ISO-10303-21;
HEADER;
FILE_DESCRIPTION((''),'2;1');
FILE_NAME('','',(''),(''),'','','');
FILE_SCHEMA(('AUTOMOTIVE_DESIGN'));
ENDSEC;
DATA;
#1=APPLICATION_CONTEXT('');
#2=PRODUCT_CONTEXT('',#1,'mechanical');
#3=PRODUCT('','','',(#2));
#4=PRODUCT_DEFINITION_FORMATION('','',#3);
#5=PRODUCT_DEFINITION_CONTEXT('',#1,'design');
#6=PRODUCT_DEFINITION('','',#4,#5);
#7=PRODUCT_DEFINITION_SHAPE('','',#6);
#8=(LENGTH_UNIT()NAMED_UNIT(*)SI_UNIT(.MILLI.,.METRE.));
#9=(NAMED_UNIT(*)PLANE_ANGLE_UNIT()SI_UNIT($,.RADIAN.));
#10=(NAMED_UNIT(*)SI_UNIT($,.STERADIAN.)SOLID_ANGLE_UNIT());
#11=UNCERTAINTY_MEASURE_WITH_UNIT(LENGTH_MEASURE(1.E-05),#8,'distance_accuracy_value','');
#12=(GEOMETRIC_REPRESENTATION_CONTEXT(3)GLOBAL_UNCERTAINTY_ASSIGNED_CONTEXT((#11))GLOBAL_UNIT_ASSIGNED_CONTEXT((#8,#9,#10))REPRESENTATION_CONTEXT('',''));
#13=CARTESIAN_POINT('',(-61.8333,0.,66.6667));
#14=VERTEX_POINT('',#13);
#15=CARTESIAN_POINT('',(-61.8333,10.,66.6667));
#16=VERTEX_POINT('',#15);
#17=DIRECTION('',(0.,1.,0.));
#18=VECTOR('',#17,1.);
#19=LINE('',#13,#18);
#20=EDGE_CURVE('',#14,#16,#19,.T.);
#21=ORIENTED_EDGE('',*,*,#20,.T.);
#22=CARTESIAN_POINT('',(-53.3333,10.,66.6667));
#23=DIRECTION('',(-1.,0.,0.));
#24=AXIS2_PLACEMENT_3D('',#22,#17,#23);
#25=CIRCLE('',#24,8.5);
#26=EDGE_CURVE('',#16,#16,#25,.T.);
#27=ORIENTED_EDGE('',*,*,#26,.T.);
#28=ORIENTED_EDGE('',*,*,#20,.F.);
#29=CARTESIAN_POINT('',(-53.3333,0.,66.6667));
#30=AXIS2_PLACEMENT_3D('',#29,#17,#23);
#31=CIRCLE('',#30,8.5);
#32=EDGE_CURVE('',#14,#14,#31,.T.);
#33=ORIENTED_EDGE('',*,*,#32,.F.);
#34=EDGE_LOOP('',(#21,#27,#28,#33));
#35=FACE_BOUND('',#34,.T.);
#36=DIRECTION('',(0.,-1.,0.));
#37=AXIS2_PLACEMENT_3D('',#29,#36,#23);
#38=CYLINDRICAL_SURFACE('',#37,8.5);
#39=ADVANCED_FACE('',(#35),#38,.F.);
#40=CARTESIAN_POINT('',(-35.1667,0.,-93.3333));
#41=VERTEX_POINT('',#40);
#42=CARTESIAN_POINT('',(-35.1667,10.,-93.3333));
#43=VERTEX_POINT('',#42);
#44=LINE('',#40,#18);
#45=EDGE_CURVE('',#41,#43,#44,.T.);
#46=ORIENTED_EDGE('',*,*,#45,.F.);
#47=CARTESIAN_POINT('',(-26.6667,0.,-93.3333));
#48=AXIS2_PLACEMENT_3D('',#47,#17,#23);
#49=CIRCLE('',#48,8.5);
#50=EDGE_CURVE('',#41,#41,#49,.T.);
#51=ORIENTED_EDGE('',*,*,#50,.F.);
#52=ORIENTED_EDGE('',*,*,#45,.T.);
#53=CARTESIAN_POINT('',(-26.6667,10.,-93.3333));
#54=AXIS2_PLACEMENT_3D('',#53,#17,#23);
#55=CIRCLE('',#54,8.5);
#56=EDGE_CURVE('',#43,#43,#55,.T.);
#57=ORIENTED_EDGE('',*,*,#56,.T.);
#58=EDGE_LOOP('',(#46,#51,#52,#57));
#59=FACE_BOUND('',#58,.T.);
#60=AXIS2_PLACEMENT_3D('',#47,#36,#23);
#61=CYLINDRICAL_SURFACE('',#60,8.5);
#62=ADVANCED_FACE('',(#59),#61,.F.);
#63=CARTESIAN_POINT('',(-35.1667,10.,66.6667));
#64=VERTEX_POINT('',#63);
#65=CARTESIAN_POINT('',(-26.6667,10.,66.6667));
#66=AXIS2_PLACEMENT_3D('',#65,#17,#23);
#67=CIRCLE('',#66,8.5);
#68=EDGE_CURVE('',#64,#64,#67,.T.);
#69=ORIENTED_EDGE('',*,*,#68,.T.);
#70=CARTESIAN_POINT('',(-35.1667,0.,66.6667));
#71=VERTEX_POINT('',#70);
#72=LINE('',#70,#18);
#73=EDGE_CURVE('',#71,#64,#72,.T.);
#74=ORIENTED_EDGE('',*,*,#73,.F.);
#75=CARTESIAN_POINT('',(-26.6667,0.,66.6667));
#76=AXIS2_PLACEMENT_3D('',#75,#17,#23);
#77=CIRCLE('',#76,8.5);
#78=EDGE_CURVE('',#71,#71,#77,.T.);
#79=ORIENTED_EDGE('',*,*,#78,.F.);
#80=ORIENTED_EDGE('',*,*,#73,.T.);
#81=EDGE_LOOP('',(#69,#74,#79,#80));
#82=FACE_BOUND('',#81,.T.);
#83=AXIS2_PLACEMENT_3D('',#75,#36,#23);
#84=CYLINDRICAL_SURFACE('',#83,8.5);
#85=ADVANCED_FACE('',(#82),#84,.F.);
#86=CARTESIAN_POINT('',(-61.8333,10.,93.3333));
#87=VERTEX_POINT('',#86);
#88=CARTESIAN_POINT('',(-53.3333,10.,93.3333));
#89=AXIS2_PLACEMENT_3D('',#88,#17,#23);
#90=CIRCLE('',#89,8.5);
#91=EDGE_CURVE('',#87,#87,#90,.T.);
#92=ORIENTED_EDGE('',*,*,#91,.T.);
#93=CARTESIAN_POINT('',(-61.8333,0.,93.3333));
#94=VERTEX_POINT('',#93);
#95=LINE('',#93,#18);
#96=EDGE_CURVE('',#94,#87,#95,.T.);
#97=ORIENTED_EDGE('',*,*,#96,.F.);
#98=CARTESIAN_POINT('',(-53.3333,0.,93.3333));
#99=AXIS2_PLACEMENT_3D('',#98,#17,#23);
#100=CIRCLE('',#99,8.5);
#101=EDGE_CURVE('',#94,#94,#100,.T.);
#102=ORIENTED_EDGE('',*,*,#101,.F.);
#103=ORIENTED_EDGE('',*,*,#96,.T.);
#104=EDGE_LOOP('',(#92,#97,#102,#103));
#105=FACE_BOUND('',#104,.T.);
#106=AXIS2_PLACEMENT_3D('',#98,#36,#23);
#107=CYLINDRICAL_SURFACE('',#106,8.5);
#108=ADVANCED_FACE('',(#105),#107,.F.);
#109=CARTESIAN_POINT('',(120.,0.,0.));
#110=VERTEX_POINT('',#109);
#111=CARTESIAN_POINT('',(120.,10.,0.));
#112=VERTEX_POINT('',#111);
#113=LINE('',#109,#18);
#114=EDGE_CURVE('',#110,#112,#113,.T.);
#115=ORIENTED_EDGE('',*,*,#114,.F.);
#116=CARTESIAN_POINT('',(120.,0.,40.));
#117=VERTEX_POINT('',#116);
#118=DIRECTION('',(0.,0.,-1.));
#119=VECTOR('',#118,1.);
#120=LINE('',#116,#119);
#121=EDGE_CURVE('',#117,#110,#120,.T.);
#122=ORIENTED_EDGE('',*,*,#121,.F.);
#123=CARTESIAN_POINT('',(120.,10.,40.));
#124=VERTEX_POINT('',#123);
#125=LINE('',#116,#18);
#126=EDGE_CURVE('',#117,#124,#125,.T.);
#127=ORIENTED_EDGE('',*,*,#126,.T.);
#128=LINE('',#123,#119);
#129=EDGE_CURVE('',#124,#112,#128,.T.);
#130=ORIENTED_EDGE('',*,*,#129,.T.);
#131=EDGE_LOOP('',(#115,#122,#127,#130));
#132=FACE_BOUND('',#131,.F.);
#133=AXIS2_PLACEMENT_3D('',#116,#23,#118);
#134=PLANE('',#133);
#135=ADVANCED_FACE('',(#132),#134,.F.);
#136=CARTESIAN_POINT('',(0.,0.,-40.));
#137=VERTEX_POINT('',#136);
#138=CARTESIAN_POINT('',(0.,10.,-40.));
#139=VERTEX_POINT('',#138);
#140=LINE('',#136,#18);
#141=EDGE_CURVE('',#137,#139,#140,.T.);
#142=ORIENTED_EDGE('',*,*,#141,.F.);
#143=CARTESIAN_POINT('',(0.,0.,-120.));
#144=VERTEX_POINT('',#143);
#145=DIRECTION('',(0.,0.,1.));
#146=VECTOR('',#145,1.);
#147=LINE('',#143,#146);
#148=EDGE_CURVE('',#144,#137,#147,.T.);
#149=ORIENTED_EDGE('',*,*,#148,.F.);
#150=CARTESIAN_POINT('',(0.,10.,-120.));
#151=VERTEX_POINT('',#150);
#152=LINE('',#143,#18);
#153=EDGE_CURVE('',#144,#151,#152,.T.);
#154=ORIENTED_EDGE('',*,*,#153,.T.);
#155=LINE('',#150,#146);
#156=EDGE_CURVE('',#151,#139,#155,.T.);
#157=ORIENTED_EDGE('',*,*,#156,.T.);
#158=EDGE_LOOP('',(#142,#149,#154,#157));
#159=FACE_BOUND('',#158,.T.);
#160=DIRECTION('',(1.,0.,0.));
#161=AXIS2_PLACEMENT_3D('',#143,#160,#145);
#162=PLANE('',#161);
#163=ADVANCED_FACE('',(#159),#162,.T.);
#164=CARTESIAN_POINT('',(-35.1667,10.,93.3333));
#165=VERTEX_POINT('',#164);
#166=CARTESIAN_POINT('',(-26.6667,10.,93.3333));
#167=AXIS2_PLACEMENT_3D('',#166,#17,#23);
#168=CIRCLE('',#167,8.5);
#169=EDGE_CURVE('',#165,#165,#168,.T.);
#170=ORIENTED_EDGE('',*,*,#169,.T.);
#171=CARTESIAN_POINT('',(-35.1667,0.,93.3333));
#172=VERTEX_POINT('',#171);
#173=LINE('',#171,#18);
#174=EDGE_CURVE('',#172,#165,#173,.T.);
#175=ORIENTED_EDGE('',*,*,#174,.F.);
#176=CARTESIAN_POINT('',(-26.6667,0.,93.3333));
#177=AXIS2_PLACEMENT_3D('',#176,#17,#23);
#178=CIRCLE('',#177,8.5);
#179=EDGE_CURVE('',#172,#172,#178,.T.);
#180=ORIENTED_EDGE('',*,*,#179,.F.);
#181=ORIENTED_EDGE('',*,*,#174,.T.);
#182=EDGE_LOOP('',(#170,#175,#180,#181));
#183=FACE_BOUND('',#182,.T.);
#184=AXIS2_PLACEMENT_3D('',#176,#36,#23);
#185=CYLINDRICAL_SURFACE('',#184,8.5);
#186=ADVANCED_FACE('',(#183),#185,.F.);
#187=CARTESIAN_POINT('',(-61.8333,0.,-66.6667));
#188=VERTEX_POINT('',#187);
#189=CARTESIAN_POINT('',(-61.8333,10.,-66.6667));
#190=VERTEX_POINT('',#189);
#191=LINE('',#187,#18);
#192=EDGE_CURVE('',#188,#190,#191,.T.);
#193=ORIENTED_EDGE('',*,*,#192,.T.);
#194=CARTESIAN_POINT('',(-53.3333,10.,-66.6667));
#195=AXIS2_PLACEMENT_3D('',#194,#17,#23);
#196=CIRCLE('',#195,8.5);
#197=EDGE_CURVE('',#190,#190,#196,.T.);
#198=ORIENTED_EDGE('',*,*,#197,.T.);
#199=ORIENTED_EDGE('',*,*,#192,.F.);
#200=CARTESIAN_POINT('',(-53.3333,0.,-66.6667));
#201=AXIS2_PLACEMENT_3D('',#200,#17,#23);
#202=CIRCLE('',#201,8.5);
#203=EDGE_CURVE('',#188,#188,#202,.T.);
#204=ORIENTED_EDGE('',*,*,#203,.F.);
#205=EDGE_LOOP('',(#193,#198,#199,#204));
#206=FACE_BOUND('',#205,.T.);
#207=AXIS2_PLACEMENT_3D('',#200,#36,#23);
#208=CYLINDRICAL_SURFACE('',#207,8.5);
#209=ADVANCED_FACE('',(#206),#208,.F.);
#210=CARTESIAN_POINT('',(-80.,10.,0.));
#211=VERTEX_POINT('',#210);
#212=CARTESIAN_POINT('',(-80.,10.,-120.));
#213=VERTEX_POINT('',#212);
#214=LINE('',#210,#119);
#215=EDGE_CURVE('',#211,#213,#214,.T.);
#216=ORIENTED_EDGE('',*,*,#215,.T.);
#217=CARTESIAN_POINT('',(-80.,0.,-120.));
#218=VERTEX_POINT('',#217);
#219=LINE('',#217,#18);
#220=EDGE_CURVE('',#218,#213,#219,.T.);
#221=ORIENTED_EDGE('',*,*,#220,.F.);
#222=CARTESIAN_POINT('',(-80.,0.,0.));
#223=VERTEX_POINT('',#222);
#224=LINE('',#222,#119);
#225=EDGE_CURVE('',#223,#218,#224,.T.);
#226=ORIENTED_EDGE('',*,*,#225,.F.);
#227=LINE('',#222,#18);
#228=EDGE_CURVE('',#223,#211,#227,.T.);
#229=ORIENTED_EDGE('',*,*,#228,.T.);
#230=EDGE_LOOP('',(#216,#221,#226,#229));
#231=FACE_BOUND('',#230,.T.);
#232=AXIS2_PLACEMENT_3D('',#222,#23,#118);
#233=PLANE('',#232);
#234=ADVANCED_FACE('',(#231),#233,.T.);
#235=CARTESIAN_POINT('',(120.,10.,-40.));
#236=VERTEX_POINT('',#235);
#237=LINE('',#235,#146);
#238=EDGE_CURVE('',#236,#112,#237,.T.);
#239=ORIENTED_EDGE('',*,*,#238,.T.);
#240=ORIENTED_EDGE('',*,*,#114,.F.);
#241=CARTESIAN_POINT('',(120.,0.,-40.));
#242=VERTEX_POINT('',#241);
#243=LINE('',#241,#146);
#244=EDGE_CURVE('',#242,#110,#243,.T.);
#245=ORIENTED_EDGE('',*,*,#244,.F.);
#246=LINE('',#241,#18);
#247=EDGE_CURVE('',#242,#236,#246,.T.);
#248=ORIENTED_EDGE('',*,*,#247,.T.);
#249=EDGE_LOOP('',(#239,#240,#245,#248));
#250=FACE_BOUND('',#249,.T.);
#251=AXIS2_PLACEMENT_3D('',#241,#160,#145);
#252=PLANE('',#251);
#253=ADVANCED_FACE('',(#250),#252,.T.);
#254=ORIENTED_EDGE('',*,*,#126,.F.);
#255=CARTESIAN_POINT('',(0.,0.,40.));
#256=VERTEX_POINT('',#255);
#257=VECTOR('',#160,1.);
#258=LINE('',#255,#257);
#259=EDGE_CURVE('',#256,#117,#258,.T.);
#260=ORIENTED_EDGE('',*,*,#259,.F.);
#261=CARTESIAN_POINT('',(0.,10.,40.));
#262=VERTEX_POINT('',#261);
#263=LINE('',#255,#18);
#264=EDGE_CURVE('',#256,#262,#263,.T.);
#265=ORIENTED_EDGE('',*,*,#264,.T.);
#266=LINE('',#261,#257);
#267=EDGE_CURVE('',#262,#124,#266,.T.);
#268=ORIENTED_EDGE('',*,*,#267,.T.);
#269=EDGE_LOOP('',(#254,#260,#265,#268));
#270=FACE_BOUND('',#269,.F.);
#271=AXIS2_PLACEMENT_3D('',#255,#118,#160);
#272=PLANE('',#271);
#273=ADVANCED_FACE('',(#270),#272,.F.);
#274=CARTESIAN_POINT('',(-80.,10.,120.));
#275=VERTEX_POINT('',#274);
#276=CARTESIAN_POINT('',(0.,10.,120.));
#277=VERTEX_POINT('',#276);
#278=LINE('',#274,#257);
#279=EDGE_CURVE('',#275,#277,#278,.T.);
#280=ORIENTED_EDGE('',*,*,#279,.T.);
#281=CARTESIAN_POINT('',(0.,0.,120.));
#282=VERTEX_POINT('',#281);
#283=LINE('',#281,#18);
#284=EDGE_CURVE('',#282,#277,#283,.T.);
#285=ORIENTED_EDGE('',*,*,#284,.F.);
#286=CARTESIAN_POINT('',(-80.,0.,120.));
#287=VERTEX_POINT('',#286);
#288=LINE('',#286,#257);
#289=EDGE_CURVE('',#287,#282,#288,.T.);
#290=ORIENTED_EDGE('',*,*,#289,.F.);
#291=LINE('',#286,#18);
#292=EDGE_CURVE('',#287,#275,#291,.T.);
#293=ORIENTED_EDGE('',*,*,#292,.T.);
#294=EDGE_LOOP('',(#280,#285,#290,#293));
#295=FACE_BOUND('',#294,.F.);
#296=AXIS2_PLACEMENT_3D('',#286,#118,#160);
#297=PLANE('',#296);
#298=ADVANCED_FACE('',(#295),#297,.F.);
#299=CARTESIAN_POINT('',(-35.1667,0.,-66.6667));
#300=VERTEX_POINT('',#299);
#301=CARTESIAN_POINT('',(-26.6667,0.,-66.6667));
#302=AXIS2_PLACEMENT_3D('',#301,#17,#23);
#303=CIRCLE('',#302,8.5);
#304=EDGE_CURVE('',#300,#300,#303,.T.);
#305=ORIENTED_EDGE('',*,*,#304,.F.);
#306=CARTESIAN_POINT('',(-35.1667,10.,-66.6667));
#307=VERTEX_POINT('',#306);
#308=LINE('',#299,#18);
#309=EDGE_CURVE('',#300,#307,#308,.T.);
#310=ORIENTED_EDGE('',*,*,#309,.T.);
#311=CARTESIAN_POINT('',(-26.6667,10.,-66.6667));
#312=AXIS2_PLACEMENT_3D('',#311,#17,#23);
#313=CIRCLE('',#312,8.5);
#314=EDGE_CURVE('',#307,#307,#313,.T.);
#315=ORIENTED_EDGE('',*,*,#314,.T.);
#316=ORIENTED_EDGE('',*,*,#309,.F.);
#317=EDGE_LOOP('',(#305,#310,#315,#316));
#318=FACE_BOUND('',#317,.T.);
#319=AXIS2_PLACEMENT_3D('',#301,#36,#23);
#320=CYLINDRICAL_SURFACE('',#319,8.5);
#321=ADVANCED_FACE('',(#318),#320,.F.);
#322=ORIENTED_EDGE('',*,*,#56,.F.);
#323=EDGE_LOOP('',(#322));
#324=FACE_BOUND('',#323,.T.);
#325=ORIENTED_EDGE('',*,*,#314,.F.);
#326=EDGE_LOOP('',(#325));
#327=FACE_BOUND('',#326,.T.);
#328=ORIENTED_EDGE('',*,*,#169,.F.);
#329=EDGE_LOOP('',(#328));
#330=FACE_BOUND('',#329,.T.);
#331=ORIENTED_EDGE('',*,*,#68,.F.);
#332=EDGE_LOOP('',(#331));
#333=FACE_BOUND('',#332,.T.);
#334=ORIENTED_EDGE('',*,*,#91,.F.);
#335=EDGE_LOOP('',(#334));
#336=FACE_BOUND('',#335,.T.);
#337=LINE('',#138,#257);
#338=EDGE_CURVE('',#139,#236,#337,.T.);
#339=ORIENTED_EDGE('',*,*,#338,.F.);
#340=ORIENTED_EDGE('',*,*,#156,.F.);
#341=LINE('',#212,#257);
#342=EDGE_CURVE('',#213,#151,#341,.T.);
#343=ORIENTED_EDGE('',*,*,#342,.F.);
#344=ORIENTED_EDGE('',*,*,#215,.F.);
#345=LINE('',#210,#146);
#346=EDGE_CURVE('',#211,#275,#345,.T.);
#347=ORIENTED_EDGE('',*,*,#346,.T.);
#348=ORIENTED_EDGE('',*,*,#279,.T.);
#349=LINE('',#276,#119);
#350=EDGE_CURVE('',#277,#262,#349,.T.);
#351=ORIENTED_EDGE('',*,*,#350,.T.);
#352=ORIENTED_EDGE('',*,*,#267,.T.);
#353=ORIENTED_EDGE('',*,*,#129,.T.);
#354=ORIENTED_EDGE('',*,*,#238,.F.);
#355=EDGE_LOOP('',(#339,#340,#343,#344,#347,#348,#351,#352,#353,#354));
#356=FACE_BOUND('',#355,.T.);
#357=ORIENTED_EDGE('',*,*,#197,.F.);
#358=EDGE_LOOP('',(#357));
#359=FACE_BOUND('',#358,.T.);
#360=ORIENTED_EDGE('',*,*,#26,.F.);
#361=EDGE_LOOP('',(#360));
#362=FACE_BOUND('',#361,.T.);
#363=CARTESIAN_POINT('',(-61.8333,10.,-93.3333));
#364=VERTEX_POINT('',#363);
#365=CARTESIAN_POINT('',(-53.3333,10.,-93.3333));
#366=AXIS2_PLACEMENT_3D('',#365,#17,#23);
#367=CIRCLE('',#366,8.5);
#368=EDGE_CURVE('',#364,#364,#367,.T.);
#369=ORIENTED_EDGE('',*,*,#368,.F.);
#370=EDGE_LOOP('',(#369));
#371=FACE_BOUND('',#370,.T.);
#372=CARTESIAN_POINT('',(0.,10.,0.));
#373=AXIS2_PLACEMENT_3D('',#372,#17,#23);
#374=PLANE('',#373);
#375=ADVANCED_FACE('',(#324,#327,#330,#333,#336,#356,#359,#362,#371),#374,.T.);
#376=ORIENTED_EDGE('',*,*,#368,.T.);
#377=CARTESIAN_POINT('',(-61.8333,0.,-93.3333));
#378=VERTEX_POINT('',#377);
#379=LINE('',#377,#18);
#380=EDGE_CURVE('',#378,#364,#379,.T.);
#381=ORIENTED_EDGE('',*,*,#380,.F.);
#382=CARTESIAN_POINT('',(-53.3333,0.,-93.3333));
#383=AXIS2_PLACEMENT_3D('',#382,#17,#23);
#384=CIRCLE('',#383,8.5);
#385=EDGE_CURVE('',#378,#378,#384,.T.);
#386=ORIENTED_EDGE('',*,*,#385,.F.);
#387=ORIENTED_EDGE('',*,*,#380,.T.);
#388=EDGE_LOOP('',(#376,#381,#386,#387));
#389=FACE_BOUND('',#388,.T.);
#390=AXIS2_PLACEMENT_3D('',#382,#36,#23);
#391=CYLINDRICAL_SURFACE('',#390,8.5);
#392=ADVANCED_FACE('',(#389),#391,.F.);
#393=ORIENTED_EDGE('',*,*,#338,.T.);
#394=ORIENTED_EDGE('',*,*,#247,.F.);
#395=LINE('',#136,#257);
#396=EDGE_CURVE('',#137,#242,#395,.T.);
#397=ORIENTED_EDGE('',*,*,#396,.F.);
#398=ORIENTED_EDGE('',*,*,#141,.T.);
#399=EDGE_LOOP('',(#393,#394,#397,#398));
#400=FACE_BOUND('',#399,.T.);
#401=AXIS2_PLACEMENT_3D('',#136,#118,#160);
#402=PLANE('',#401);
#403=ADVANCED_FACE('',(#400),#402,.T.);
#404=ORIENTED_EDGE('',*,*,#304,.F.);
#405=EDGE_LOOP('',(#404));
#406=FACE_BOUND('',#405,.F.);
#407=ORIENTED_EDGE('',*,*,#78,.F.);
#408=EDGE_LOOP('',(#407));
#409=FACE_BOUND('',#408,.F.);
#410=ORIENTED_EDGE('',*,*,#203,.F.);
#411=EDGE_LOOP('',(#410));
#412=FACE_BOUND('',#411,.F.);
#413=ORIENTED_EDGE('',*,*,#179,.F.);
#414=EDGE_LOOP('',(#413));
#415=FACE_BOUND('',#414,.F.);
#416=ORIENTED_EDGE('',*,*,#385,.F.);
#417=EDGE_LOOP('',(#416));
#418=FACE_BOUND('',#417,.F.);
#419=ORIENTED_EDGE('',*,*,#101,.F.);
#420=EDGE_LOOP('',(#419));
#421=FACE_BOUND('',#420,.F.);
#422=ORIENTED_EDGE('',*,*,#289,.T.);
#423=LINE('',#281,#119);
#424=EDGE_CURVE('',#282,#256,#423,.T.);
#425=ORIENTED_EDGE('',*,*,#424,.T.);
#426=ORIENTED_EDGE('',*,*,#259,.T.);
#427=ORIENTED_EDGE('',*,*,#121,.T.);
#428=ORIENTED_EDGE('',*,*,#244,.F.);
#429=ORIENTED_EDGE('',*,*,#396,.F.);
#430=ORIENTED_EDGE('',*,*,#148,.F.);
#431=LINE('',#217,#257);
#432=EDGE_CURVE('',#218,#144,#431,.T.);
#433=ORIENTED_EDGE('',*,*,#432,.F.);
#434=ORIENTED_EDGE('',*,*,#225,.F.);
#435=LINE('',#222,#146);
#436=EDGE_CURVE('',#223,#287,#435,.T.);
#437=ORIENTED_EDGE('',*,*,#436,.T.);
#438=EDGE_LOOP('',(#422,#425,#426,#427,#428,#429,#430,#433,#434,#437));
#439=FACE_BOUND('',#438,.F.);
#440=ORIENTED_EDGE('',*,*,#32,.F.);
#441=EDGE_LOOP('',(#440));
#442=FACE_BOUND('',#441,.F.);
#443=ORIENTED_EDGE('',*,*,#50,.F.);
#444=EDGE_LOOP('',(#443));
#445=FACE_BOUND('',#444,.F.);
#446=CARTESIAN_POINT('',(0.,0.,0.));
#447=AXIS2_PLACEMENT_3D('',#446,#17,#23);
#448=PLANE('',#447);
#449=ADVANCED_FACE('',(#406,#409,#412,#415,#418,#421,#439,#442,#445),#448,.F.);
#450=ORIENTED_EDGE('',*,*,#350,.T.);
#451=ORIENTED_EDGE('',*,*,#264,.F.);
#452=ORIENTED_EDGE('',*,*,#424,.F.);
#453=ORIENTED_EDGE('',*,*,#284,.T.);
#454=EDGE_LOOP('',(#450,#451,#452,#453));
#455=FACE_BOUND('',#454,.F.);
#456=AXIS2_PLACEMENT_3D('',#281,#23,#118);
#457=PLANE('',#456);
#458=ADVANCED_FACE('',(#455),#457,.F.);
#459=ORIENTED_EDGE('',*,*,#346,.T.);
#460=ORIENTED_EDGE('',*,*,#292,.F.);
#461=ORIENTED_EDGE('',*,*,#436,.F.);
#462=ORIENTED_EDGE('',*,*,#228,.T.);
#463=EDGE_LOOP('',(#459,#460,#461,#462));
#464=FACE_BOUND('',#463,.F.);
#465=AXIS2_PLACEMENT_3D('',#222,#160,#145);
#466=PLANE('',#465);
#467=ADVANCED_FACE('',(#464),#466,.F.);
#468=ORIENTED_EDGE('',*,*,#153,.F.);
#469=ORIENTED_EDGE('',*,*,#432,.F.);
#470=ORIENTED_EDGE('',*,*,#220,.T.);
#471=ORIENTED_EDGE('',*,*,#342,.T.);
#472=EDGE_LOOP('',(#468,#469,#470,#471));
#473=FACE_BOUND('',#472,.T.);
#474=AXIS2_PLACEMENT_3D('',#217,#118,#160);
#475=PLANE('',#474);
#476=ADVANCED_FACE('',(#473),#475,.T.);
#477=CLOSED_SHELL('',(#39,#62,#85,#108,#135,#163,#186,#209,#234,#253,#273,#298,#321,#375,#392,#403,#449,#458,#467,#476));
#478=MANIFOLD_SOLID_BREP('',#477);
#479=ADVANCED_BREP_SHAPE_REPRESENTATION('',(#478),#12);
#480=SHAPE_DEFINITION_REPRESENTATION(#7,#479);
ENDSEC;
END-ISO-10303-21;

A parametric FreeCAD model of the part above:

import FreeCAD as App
import Part
import Sketcher


def add_polygon(sketch, points):
    """Adds a closed chain of lines whose ends are joined by coincident constraints."""
    first, n = sketch.GeometryCount, len(points)
    for a, b in zip(points, points[1:] + points[:1]):
        sketch.addGeometry(Part.LineSegment(App.Vector(*a, 0), App.Vector(*b, 0)), False)
    for i in range(n):
        sketch.addConstraint(Sketcher.Constraint("Coincident", first + i, 2, first + (i + 1) % n, 1))

doc = App.newDocument("Part")
body = doc.addObject("PartDesign::Body", "Body")

# Sketch on XZ plane
sketch1 = body.newObject("Sketcher::SketchObject", "Sketch")
sketch1.AttachmentSupport = (doc.getObject("XZ_Plane"), [""])
sketch1.MapMode = "FlatFace"
add_polygon(sketch1, [(-80, -120), (-80, 120), (0, 120), (0, 40), (120, 40), (120, -40), (0, -40), (0, -120)])  # lines 0-7
sketch1.addGeometry(Part.Circle(App.Vector(-27, -93, 0), App.Vector(0, 0, 1), 8), False)  # 8
sketch1.addGeometry(Part.Circle(App.Vector(-27, -67, 0), App.Vector(0, 0, 1), 8), False)  # 9
sketch1.addGeometry(Part.Circle(App.Vector(-53, -93, 0), App.Vector(0, 0, 1), 8), False)  # 10
sketch1.addGeometry(Part.Circle(App.Vector(-53, -67, 0), App.Vector(0, 0, 1), 8), False)  # 11
sketch1.addGeometry(Part.Circle(App.Vector(-27, 67, 0), App.Vector(0, 0, 1), 8), False)  # 12
sketch1.addGeometry(Part.Circle(App.Vector(-27, 93, 0), App.Vector(0, 0, 1), 8), False)  # 13
sketch1.addGeometry(Part.Circle(App.Vector(-53, 67, 0), App.Vector(0, 0, 1), 8), False)  # 14
sketch1.addGeometry(Part.Circle(App.Vector(-53, 93, 0), App.Vector(0, 0, 1), 8), False)  # 15
sketch1.addConstraint([
    Sketcher.Constraint("Vertical", 0),
    Sketcher.Constraint("Horizontal", 1),
    Sketcher.Constraint("Vertical", 2),
    Sketcher.Constraint("Horizontal", 3),
    Sketcher.Constraint("Vertical", 4),
    Sketcher.Constraint("Horizontal", 5),
    Sketcher.Constraint("Vertical", 6),
    Sketcher.Constraint("Horizontal", 7),
    Sketcher.Constraint("Equal", 8, 9),
    Sketcher.Constraint("Equal", 9, 10),
    Sketcher.Constraint("Equal", 10, 11),
    Sketcher.Constraint("Equal", 11, 12),
    Sketcher.Constraint("Equal", 12, 13),
    Sketcher.Constraint("Equal", 13, 14),
    Sketcher.Constraint("Equal", 14, 15),
    Sketcher.Constraint("Symmetric", 2, 2, 5, 2, -1, 1),
    Sketcher.Constraint("Symmetric", 9, 3, 12, 3, -1),
    Sketcher.Constraint("Symmetric", 8, 3, 13, 3, -1),
    Sketcher.Constraint("Symmetric", 11, 3, 14, 3, -1),
    Sketcher.Constraint("Symmetric", 10, 3, 15, 3, -1),
    Sketcher.Constraint("Symmetric", 1, 2, 6, 2, -1),
    Sketcher.Constraint("Horizontal", 8, 3, 10, 3),
    Sketcher.Constraint("Horizontal", 9, 3, 11, 3),
    Sketcher.Constraint("Vertical", 8, 3, 9, 3),
    Sketcher.Constraint("Vertical", 10, 3, 11, 3),
    Sketcher.Constraint("Equal", 7, 2),
    Sketcher.Constraint("Equal", 2, 4),
    Sketcher.Constraint("Diameter", 8, 17.0),
    Sketcher.Constraint("DistanceX", 1, 1, 1, 2, 80.0),
    Sketcher.Constraint("DistanceX", 3, 1, 3, 2, 120.0),
    Sketcher.Constraint("DistanceY", 8, 3, 12, 3, 160.0),
    Sketcher.Constraint("DistanceX", 8, 3, -1, 1, 26.6667),
    Sketcher.Constraint("DistanceY", 8, 3, 9, 3, 26.6666),
    Sketcher.Constraint("DistanceX", 10, 3, 8, 3, 26.6666),
])
pad1 = body.newObject("PartDesign::Pad", "Pad")
pad1.Profile = sketch1
pad1.Length = 10
pad1.Reversed = True

doc.recompute()
